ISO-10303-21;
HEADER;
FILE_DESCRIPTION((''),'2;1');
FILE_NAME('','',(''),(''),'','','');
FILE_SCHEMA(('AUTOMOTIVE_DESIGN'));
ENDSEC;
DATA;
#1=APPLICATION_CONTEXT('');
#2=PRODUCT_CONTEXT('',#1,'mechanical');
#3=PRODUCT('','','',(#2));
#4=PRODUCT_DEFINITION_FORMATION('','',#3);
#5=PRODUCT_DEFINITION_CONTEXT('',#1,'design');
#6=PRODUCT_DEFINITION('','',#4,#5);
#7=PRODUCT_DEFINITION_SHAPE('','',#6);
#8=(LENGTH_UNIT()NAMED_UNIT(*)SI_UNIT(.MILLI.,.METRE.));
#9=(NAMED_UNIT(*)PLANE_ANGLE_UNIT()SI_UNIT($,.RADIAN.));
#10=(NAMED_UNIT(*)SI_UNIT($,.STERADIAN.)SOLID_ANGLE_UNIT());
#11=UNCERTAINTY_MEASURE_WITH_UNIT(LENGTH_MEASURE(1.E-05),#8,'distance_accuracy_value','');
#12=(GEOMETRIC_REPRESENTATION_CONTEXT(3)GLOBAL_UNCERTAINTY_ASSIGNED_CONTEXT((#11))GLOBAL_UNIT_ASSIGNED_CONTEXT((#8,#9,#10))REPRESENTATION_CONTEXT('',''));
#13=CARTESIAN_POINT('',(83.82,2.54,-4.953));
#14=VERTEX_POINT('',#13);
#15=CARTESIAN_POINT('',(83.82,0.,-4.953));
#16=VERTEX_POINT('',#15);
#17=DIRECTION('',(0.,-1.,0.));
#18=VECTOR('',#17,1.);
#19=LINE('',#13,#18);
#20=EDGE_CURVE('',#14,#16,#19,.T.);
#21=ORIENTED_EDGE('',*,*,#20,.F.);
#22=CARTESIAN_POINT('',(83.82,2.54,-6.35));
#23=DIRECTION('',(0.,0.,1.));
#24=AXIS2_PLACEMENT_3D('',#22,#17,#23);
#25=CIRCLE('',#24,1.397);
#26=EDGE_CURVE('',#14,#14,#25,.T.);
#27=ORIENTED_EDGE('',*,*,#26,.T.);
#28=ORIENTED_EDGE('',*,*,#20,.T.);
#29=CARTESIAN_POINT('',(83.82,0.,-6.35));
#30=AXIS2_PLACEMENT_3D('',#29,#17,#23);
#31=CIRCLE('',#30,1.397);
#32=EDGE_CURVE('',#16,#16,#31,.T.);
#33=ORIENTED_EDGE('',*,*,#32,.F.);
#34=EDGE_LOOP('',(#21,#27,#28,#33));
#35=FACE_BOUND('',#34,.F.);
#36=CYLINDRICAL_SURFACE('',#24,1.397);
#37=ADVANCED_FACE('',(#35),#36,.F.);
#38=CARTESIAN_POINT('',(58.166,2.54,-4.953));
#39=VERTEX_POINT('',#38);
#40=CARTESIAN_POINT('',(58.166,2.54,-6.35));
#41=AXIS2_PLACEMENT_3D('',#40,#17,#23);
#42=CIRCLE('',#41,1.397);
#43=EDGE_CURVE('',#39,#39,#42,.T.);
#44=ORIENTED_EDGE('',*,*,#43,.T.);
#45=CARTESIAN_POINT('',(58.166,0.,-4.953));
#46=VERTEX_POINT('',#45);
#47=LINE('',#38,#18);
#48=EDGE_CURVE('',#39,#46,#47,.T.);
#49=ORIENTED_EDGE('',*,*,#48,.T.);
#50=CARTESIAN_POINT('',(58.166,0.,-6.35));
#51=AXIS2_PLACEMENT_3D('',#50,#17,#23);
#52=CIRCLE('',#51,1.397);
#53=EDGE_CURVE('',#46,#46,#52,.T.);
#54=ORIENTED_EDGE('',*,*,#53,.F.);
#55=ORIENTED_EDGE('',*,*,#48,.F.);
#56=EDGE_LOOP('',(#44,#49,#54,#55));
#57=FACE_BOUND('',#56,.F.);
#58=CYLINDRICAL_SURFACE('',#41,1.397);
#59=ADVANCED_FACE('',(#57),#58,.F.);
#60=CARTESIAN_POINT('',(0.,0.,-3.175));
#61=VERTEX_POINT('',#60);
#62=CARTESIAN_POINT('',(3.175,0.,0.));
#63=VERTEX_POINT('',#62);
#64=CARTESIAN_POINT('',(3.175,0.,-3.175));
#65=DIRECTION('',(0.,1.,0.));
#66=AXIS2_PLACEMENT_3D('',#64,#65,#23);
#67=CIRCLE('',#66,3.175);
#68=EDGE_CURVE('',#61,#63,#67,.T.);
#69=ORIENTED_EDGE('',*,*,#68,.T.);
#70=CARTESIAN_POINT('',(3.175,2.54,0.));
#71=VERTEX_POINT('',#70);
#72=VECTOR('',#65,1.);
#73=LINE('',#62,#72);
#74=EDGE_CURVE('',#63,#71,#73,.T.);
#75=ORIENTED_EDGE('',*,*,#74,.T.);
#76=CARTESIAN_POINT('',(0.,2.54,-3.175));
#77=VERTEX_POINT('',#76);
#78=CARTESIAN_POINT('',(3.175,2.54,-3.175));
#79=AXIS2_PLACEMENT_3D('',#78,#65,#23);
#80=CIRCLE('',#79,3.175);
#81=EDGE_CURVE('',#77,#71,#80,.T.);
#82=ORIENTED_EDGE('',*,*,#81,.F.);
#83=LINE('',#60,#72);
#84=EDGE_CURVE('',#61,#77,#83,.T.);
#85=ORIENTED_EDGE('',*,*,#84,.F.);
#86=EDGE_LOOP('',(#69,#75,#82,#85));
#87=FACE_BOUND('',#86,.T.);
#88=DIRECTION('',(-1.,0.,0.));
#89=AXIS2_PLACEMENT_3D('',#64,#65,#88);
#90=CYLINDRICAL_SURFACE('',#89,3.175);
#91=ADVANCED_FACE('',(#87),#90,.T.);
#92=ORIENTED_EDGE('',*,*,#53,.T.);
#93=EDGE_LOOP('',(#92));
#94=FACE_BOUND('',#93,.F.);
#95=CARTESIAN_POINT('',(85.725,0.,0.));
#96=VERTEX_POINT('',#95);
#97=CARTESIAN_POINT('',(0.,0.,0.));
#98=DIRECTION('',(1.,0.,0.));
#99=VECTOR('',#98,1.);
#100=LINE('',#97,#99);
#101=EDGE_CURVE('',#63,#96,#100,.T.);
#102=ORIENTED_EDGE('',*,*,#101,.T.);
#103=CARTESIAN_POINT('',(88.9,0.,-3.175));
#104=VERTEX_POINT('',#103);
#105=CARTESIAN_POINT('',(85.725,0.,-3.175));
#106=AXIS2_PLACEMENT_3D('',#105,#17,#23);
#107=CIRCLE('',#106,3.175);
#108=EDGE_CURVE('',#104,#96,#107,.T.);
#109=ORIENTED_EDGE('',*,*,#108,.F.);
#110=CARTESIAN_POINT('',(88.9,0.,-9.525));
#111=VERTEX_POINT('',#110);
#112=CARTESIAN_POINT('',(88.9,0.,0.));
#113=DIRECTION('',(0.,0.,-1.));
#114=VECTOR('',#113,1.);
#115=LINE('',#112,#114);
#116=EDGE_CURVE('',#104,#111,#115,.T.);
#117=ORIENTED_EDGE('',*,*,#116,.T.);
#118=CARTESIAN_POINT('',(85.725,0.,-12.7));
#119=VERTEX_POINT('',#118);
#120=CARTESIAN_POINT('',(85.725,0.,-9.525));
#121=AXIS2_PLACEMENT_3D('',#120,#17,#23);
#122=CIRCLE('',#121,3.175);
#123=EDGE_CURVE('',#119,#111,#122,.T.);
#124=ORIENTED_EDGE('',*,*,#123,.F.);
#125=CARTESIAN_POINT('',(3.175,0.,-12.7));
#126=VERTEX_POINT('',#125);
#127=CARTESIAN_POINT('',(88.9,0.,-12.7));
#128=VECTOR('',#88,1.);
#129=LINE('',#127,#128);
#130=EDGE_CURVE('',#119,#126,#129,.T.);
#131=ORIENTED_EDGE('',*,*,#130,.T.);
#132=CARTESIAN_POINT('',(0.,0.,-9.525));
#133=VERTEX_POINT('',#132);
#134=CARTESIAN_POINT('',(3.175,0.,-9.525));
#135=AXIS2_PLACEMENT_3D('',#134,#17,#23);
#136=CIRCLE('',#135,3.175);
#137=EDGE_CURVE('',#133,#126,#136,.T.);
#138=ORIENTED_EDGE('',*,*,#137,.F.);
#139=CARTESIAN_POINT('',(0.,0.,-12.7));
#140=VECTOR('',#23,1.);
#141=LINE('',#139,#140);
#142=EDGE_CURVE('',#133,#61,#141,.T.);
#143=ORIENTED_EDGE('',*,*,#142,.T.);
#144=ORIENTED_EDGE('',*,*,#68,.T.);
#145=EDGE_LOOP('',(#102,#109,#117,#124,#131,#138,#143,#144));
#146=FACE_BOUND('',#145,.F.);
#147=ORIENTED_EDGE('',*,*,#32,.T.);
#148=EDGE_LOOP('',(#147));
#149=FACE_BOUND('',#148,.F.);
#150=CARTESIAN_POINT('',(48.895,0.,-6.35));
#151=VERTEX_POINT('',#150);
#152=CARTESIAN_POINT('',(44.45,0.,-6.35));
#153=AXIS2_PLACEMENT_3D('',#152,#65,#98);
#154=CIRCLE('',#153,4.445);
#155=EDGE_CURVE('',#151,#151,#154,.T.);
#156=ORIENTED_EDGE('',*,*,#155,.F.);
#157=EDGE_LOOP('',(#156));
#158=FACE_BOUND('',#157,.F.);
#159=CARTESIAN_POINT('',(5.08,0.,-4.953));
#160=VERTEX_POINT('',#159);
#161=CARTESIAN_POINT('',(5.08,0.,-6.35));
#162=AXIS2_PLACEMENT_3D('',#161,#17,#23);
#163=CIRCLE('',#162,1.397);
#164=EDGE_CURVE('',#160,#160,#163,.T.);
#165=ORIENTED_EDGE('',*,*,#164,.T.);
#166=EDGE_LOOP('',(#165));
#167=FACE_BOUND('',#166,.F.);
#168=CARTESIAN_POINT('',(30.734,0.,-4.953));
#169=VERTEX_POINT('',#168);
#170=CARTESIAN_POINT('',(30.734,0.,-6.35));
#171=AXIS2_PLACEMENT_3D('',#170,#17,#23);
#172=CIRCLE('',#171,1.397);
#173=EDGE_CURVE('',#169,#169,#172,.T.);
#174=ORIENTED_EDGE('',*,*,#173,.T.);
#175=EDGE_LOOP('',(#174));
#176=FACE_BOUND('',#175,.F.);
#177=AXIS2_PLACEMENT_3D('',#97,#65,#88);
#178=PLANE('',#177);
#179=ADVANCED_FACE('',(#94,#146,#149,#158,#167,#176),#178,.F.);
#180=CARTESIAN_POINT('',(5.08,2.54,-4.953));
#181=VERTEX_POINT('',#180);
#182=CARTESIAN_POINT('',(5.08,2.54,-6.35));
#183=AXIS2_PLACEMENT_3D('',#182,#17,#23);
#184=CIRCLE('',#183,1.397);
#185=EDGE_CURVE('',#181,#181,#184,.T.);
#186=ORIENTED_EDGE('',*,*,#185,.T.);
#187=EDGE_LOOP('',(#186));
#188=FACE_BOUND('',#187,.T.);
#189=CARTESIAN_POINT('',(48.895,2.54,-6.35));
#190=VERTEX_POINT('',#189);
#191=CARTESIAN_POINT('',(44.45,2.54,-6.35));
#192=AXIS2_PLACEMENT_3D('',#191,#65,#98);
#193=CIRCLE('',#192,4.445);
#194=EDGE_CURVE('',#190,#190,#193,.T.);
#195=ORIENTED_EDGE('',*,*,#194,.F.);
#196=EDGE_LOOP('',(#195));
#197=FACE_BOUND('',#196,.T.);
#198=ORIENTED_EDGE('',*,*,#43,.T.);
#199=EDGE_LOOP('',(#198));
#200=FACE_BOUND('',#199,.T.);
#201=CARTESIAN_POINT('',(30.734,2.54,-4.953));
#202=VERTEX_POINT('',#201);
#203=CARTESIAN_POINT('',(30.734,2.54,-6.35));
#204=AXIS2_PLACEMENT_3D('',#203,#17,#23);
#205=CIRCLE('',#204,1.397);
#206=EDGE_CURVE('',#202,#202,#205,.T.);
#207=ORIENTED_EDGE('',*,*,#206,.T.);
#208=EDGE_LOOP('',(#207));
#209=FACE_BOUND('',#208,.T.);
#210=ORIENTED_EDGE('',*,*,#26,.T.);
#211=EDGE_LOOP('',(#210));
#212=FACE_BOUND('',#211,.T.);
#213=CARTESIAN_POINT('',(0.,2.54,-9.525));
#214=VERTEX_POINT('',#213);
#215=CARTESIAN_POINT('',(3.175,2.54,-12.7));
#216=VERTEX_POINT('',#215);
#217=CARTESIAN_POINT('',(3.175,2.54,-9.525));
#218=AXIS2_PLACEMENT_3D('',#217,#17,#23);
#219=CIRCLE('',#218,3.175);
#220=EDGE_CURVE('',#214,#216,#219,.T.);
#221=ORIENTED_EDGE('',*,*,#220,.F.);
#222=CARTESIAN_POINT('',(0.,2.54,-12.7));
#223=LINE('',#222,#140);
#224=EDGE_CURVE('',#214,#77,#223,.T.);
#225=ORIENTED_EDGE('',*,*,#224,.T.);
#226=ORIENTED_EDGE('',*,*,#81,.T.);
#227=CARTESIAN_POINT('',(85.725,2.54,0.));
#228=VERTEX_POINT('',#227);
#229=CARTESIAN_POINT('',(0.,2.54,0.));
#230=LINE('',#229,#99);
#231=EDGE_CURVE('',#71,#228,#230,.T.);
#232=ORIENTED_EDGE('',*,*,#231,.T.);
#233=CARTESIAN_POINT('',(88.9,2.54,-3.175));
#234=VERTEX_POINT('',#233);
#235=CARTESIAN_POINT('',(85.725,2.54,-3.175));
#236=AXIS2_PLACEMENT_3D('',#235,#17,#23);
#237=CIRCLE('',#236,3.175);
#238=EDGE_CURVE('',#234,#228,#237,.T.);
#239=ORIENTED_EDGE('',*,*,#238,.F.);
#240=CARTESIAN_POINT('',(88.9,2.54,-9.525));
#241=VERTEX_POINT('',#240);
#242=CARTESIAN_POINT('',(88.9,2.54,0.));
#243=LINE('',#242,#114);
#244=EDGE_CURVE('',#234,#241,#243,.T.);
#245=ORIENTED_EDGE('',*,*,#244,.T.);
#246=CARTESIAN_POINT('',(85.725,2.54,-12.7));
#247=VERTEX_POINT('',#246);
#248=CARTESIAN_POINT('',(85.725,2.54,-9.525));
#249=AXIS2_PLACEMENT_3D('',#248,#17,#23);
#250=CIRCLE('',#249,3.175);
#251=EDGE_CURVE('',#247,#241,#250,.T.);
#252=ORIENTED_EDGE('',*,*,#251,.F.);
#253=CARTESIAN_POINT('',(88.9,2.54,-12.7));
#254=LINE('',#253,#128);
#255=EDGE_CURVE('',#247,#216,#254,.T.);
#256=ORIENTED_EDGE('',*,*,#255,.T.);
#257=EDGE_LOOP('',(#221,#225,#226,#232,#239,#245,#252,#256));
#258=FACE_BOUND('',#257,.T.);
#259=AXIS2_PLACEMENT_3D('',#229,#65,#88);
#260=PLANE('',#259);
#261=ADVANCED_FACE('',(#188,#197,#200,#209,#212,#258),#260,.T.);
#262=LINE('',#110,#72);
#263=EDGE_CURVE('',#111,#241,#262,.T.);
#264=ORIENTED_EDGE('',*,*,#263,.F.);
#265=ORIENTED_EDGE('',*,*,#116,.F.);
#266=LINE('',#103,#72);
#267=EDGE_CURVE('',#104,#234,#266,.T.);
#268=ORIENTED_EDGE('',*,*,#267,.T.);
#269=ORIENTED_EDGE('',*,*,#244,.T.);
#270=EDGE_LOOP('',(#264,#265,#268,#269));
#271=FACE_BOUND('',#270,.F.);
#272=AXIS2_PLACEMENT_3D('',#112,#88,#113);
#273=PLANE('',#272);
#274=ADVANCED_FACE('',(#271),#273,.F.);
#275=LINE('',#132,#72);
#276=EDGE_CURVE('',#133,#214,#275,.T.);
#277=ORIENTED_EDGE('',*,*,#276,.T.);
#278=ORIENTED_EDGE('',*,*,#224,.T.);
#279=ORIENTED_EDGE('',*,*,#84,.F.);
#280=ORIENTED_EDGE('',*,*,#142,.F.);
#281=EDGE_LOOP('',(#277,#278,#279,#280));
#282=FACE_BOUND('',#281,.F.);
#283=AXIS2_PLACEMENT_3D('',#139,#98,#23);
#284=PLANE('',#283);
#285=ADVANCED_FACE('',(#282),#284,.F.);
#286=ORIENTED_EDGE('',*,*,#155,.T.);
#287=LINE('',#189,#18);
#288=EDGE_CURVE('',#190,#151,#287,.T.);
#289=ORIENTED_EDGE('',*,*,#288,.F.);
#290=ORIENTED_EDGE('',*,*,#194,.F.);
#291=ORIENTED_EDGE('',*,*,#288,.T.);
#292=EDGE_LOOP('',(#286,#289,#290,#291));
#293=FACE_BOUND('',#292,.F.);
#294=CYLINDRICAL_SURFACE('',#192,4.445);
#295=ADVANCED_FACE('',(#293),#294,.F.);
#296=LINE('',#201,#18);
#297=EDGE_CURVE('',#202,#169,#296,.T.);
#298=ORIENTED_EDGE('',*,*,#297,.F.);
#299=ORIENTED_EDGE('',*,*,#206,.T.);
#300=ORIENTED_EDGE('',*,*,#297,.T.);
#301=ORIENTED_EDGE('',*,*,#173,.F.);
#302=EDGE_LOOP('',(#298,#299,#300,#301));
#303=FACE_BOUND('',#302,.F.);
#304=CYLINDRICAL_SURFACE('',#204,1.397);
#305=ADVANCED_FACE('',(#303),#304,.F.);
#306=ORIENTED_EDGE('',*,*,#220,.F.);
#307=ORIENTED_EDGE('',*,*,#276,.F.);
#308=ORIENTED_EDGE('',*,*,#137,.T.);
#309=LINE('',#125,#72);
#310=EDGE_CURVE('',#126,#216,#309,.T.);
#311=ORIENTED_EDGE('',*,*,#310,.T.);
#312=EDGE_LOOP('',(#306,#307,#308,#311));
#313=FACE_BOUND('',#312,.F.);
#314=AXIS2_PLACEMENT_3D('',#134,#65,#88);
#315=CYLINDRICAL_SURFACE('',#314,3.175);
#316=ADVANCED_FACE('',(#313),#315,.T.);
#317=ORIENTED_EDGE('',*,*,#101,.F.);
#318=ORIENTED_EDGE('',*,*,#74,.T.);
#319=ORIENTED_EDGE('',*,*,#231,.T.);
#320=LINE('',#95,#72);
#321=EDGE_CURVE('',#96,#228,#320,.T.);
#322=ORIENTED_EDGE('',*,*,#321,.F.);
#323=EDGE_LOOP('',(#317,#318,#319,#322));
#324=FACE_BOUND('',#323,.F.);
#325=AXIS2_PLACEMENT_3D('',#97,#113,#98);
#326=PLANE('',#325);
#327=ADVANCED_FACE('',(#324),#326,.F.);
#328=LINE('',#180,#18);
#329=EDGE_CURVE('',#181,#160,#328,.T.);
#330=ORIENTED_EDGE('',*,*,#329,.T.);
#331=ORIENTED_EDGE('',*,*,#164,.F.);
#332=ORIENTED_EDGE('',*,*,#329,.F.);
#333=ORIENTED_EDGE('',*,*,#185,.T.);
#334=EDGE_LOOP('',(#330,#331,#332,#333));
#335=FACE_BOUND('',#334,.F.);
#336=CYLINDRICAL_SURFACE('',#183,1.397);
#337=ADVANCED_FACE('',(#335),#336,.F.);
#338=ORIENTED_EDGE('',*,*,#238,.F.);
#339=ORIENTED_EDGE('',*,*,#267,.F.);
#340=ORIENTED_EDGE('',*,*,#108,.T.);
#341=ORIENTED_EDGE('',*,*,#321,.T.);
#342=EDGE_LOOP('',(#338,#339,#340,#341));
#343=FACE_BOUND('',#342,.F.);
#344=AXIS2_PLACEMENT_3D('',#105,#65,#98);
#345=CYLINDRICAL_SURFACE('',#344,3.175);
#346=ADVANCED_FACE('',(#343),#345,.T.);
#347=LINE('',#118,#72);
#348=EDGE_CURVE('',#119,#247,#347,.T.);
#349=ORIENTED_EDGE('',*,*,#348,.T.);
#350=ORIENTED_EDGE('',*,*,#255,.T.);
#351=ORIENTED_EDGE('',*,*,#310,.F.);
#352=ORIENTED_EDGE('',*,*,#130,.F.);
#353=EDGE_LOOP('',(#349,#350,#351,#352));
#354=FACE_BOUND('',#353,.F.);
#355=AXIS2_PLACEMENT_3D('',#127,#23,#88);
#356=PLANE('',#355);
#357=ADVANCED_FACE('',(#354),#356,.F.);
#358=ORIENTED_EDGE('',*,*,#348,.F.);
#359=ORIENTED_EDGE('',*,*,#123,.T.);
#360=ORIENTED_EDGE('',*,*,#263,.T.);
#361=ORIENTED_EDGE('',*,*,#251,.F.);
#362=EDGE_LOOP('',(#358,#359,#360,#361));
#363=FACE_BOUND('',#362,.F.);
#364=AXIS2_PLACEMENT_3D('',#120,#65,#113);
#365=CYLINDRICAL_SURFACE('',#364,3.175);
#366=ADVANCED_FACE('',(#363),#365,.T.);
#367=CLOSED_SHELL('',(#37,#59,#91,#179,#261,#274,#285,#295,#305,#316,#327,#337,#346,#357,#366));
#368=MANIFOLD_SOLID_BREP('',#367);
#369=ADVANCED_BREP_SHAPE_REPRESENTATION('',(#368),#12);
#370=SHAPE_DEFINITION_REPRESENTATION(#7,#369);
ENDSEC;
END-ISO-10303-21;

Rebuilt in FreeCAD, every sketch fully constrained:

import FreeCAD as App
import Part
import Sketcher

V = App.Vector
Q = App.Units.Quantity


def edges_at(feature, points):
    """Names of the edges that pass closest to the given points."""
    edges = feature.Shape.Edges
    near = lambda p: min(range(len(edges)), key=lambda i: edges[i].distToShape(Part.Vertex(*p))[0])
    return sorted({f"Edge{near(p) + 1}" for p in points})


def add_polygon(sketch, points):
    """Adds a closed chain of lines whose ends are joined by coincident constraints."""
    first, n = sketch.GeometryCount, len(points)
    for a, b in zip(points, points[1:] + points[:1]):
        sketch.addGeometry(Part.LineSegment(App.Vector(*a, 0), App.Vector(*b, 0)), False)
    for i in range(n):
        sketch.addConstraint(Sketcher.Constraint("Coincident", first + i, 2, first + (i + 1) % n, 1))

doc = App.newDocument("Part")
body = doc.addObject("PartDesign::Body", "Body")

# Sketch on XZ plane
sketch1 = body.newObject("Sketcher::SketchObject", "Sketch")
sketch1.AttachmentSupport = (doc.getObject("XZ_Plane"), [""])
sketch1.MapMode = "FlatFace"
add_polygon(sketch1, [(0, -13), (0, 0), (89, 0), (89, -13)])  # lines 0-3
sketch1.addConstraint([
    Sketcher.Constraint("Vertical", 0),
    Sketcher.Constraint("Horizontal", 1),
    Sketcher.Constraint("Vertical", 2),
    Sketcher.Constraint("Horizontal", 3),
    Sketcher.Constraint("Coincident", 0, 2, -1, 1),
    Sketcher.Constraint("DistanceX", 1, 1, 1, 2, Q("3.5 in")),
    Sketcher.Constraint("DistanceY", 0, 1, 0, 2, Q("0.5 in")),
])
pad1 = body.newObject("PartDesign::Pad", "Pad")
pad1.Profile = sketch1
pad1.Length = Q("0.1 in")
pad1.Reversed = True
doc.recompute()

fillet = body.newObject("PartDesign::Fillet", "Fillet")
fillet.Base = (pad1, edges_at(pad1, [
    (88.9, 1.27, 0),
    (88.9, 1.27, -12.7),
    (0, 1.27, -12.7),
    (0, 1.27, 0),
]))
fillet.Radius = Q("0.125 in")

# Sketch on XZ plane
sketch2 = body.newObject("Sketcher::SketchObject", "Sketch001")
sketch2.AttachmentSupport = (doc.getObject("XZ_Plane"), [""])
sketch2.MapMode = "FlatFace"
sketch2.AttachmentOffset = App.Placement(V(0, 0, -0.1 * 25.4), App.Rotation())
sketch2.addGeometry(Part.Circle(V(44.5, -6.3, 0), V(0, 0, 1), 4.4), False)
sketch2.addConstraint([
    Sketcher.Constraint("Diameter", 0, Q("0.35 in")),
    Sketcher.Constraint("DistanceX", -1, 1, 0, 3, Q("1.75 in")),
    Sketcher.Constraint("DistanceY", 0, 3, -1, 1, Q("0.25 in")),
])
pocket1 = body.newObject("PartDesign::Pocket", "Pocket")
pocket1.Profile = sketch2
pocket1.Length = Q("0.1 in")
pocket1.Reversed = True

# Sketch on XZ plane
sketch3 = body.newObject("Sketcher::SketchObject", "Sketch002")
sketch3.AttachmentSupport = (doc.getObject("XZ_Plane"), [""])
sketch3.MapMode = "FlatFace"
sketch3.AttachmentOffset = App.Placement(V(0, 0, -0.1 * 25.4), App.Rotation())
sketch3.addGeometry(Part.Circle(V(58.2, -6.3, 0), V(0, 0, 1), 1.4), False)
sketch3.addConstraint([
    Sketcher.Constraint("Diameter", 0, Q("0.11 in")),
    Sketcher.Constraint("DistanceX", -1, 1, 0, 3, Q("2.29 in")),
    Sketcher.Constraint("DistanceY", 0, 3, -1, 1, Q("0.25 in")),
])
doc.recompute()
hole = body.newObject("PartDesign::Hole", "Hole")
hole.Profile = sketch3
hole.ThreadType = "None"
hole.Diameter = Q("0.11 in")
hole.DepthType = "ThroughAll"
hole.Reversed = True

# Sketch on XZ plane
sketch4 = body.newObject("Sketcher::SketchObject", "Sketch003")
sketch4.AttachmentSupport = (doc.getObject("XZ_Plane"), [""])
sketch4.MapMode = "FlatFace"
sketch4.AttachmentOffset = App.Placement(V(0, 0, -0.1 * 25.4), App.Rotation())
sketch4.addGeometry(Part.Circle(V(30.7, -6.3, 0), V(0, 0, 1), 1.4), False)
sketch4.addConstraint([
    Sketcher.Constraint("Diameter", 0, Q("0.11 in")),
    Sketcher.Constraint("DistanceX", -1, 1, 0, 3, Q("1.21 in")),
    Sketcher.Constraint("DistanceY", 0, 3, -1, 1, Q("0.25 in")),
])
doc.recompute()
hole2 = body.newObject("PartDesign::Hole", "Hole001")
hole2.Profile = sketch4
hole2.ThreadType = "None"
hole2.Diameter = Q("0.11 in")
hole2.DepthType = "ThroughAll"
hole2.Reversed = True

# Sketch on XZ plane
sketch5 = body.newObject("Sketcher::SketchObject", "Sketch004")
sketch5.AttachmentSupport = (doc.getObject("XZ_Plane"), [""])
sketch5.MapMode = "FlatFace"
sketch5.AttachmentOffset = App.Placement(V(0, 0, -0.1 * 25.4), App.Rotation())
sketch5.addGeometry(Part.Circle(V(5.1, -6.3, 0), V(0, 0, 1), 1.4), False)
sketch5.addConstraint([
    Sketcher.Constraint("Diameter", 0, Q("0.11 in")),
    Sketcher.Constraint("DistanceX", -1, 1, 0, 3, Q("0.2 in")),
    Sketcher.Constraint("DistanceY", 0, 3, -1, 1, Q("0.25 in")),
])
doc.recompute()
hole3 = body.newObject("PartDesign::Hole", "Hole002")
hole3.Profile = sketch5
hole3.ThreadType = "None"
hole3.Diameter = Q("0.11 in")
hole3.DepthType = "ThroughAll"
hole3.Reversed = True

# Sketch on XZ plane
sketch6 = body.newObject("Sketcher::SketchObject", "Sketch005")
sketch6.AttachmentSupport = (doc.getObject("XZ_Plane"), [""])
sketch6.MapMode = "FlatFace"
sketch6.AttachmentOffset = App.Placement(V(0, 0, -0.1 * 25.4), App.Rotation())
sketch6.addGeometry(Part.Circle(V(83.8, -6.3, 0), V(0, 0, 1), 1.4), False)
sketch6.addConstraint([
    Sketcher.Constraint("Diameter", 0, Q("0.11 in")),
    Sketcher.Constraint("DistanceX", -1, 1, 0, 3, Q("3.3 in")),
    Sketcher.Constraint("DistanceY", 0, 3, -1, 1, Q("0.25 in")),
])
doc.recompute()
hole4 = body.newObject("PartDesign::Hole", "Hole003")
hole4.Profile = sketch6
hole4.ThreadType = "None"
hole4.Diameter = Q("0.11 in")
hole4.DepthType = "ThroughAll"
hole4.Reversed = True

doc.recompute()
